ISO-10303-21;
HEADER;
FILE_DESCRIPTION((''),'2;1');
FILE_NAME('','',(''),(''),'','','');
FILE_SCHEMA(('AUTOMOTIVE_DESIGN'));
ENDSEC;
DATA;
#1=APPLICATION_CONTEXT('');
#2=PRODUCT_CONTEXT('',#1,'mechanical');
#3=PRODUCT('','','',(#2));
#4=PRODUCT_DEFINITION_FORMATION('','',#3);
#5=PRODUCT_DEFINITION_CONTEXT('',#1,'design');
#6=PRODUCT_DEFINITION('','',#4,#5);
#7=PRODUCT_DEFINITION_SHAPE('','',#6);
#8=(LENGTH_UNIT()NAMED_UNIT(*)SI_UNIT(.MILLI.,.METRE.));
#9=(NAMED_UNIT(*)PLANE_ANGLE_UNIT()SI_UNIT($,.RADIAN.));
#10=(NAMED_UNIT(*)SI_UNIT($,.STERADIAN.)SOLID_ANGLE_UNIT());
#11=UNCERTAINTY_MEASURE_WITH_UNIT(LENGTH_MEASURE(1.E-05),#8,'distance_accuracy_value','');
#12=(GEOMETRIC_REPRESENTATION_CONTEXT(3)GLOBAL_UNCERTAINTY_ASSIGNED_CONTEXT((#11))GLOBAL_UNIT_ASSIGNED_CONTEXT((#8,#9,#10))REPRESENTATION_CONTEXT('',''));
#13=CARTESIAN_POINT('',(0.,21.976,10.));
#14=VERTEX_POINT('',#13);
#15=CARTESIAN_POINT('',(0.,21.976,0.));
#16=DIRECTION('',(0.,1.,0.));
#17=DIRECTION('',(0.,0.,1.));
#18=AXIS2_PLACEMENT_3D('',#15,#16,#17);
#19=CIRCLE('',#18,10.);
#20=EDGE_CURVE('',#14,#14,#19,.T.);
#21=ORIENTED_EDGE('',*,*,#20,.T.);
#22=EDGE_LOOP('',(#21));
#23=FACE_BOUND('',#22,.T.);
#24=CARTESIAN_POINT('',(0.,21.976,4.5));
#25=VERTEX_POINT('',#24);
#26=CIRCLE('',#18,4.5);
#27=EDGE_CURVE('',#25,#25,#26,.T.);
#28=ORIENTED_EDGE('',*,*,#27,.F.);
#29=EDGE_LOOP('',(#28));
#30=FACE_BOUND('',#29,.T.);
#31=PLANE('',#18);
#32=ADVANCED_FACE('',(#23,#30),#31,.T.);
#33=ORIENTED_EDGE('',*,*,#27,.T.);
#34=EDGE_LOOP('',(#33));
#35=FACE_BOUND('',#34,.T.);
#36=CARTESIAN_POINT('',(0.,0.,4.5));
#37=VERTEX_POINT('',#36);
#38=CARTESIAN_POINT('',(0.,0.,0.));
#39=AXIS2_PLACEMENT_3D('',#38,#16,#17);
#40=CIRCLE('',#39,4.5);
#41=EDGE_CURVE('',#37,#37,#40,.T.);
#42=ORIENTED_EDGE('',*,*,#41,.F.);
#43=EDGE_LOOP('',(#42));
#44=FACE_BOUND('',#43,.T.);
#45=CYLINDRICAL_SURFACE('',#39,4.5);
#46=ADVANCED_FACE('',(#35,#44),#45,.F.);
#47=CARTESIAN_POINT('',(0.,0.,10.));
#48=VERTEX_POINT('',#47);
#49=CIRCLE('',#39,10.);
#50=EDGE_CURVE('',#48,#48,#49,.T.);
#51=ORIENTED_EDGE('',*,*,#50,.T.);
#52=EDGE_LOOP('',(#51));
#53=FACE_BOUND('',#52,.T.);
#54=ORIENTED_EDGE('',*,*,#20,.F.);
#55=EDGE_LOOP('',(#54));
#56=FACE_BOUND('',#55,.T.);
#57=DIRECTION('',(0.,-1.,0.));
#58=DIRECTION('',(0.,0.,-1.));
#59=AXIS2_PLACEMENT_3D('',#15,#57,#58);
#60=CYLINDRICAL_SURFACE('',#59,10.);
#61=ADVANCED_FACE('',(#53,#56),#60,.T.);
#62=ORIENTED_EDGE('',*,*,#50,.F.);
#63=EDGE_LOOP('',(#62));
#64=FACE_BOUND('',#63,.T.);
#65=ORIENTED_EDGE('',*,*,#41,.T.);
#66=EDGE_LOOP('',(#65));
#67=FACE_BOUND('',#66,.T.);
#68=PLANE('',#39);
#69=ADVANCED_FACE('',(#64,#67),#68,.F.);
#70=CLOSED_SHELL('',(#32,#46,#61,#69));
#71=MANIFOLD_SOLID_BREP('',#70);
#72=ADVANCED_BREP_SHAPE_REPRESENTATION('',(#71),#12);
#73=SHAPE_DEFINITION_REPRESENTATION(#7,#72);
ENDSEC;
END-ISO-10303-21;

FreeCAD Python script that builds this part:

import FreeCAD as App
import Part
import Sketcher
from FreeCAD import Vector
Q = App.Units.Quantity

doc = App.newDocument("Part")
params = doc.addObject("Spreadsheet::Sheet", "Params")
for row, (alias, value) in enumerate([
    ("sketch1_diameter", "20 mm"),
    ("pad1_length", "21.976 mm"),
    ("sketch2_diameter", "9 mm"),
], start=1):
    params.set(f"A{row}", alias)
    params.set(f"B{row}", "=" + value)
    params.setAlias(f"B{row}", alias)

body = doc.addObject("PartDesign::Body", "Body")

# Sketch on XZ plane
sketch1 = body.newObject("Sketcher::SketchObject", "Sketch")
sketch1.AttachmentSupport = (doc.getObject("XZ_Plane"), [""])
sketch1.MapMode = "FlatFace"
sketch1.addGeometry(Part.Circle(Vector(0, 0, 0), Vector(0, 0, 1), 10), False)
sketch1.addConstraint(Sketcher.Constraint("Coincident", 0, 3, -1, 1))
sketch1.addConstraint(Sketcher.Constraint("Diameter", 0, Q("20 mm")))
sketch1.setExpression("Constraints[1]", "Params.sketch1_diameter")
pad1 = body.newObject("PartDesign::Pad", "Pad")
pad1.Profile = sketch1
pad1.setExpression("Length", "Params.pad1_length")
pad1.Reversed = True

# Sketch on XZ plane
sketch2 = body.newObject("Sketcher::SketchObject", "Sketch001")
sketch2.AttachmentSupport = (doc.getObject("XZ_Plane"), [""])
sketch2.MapMode = "FlatFace"
sketch2.AttachmentOffset = App.Placement(Vector(0, 0, -21.976), App.Rotation())
sketch2.addGeometry(Part.Circle(Vector(0, 0, 0), Vector(0, 0, 1), 4.5), False)
sketch2.addConstraint(Sketcher.Constraint("Coincident", 0, 3, -1, 1))
sketch2.addConstraint(Sketcher.Constraint("Diameter", 0, Q("9 mm")))
sketch2.setExpression("Constraints[1]", "Params.sketch2_diameter")
pocket1 = body.newObject("PartDesign::Pocket", "Pocket")
pocket1.Profile = sketch2
pocket1.Type = "ThroughAll"
pocket1.Reversed = True

doc.recompute()
